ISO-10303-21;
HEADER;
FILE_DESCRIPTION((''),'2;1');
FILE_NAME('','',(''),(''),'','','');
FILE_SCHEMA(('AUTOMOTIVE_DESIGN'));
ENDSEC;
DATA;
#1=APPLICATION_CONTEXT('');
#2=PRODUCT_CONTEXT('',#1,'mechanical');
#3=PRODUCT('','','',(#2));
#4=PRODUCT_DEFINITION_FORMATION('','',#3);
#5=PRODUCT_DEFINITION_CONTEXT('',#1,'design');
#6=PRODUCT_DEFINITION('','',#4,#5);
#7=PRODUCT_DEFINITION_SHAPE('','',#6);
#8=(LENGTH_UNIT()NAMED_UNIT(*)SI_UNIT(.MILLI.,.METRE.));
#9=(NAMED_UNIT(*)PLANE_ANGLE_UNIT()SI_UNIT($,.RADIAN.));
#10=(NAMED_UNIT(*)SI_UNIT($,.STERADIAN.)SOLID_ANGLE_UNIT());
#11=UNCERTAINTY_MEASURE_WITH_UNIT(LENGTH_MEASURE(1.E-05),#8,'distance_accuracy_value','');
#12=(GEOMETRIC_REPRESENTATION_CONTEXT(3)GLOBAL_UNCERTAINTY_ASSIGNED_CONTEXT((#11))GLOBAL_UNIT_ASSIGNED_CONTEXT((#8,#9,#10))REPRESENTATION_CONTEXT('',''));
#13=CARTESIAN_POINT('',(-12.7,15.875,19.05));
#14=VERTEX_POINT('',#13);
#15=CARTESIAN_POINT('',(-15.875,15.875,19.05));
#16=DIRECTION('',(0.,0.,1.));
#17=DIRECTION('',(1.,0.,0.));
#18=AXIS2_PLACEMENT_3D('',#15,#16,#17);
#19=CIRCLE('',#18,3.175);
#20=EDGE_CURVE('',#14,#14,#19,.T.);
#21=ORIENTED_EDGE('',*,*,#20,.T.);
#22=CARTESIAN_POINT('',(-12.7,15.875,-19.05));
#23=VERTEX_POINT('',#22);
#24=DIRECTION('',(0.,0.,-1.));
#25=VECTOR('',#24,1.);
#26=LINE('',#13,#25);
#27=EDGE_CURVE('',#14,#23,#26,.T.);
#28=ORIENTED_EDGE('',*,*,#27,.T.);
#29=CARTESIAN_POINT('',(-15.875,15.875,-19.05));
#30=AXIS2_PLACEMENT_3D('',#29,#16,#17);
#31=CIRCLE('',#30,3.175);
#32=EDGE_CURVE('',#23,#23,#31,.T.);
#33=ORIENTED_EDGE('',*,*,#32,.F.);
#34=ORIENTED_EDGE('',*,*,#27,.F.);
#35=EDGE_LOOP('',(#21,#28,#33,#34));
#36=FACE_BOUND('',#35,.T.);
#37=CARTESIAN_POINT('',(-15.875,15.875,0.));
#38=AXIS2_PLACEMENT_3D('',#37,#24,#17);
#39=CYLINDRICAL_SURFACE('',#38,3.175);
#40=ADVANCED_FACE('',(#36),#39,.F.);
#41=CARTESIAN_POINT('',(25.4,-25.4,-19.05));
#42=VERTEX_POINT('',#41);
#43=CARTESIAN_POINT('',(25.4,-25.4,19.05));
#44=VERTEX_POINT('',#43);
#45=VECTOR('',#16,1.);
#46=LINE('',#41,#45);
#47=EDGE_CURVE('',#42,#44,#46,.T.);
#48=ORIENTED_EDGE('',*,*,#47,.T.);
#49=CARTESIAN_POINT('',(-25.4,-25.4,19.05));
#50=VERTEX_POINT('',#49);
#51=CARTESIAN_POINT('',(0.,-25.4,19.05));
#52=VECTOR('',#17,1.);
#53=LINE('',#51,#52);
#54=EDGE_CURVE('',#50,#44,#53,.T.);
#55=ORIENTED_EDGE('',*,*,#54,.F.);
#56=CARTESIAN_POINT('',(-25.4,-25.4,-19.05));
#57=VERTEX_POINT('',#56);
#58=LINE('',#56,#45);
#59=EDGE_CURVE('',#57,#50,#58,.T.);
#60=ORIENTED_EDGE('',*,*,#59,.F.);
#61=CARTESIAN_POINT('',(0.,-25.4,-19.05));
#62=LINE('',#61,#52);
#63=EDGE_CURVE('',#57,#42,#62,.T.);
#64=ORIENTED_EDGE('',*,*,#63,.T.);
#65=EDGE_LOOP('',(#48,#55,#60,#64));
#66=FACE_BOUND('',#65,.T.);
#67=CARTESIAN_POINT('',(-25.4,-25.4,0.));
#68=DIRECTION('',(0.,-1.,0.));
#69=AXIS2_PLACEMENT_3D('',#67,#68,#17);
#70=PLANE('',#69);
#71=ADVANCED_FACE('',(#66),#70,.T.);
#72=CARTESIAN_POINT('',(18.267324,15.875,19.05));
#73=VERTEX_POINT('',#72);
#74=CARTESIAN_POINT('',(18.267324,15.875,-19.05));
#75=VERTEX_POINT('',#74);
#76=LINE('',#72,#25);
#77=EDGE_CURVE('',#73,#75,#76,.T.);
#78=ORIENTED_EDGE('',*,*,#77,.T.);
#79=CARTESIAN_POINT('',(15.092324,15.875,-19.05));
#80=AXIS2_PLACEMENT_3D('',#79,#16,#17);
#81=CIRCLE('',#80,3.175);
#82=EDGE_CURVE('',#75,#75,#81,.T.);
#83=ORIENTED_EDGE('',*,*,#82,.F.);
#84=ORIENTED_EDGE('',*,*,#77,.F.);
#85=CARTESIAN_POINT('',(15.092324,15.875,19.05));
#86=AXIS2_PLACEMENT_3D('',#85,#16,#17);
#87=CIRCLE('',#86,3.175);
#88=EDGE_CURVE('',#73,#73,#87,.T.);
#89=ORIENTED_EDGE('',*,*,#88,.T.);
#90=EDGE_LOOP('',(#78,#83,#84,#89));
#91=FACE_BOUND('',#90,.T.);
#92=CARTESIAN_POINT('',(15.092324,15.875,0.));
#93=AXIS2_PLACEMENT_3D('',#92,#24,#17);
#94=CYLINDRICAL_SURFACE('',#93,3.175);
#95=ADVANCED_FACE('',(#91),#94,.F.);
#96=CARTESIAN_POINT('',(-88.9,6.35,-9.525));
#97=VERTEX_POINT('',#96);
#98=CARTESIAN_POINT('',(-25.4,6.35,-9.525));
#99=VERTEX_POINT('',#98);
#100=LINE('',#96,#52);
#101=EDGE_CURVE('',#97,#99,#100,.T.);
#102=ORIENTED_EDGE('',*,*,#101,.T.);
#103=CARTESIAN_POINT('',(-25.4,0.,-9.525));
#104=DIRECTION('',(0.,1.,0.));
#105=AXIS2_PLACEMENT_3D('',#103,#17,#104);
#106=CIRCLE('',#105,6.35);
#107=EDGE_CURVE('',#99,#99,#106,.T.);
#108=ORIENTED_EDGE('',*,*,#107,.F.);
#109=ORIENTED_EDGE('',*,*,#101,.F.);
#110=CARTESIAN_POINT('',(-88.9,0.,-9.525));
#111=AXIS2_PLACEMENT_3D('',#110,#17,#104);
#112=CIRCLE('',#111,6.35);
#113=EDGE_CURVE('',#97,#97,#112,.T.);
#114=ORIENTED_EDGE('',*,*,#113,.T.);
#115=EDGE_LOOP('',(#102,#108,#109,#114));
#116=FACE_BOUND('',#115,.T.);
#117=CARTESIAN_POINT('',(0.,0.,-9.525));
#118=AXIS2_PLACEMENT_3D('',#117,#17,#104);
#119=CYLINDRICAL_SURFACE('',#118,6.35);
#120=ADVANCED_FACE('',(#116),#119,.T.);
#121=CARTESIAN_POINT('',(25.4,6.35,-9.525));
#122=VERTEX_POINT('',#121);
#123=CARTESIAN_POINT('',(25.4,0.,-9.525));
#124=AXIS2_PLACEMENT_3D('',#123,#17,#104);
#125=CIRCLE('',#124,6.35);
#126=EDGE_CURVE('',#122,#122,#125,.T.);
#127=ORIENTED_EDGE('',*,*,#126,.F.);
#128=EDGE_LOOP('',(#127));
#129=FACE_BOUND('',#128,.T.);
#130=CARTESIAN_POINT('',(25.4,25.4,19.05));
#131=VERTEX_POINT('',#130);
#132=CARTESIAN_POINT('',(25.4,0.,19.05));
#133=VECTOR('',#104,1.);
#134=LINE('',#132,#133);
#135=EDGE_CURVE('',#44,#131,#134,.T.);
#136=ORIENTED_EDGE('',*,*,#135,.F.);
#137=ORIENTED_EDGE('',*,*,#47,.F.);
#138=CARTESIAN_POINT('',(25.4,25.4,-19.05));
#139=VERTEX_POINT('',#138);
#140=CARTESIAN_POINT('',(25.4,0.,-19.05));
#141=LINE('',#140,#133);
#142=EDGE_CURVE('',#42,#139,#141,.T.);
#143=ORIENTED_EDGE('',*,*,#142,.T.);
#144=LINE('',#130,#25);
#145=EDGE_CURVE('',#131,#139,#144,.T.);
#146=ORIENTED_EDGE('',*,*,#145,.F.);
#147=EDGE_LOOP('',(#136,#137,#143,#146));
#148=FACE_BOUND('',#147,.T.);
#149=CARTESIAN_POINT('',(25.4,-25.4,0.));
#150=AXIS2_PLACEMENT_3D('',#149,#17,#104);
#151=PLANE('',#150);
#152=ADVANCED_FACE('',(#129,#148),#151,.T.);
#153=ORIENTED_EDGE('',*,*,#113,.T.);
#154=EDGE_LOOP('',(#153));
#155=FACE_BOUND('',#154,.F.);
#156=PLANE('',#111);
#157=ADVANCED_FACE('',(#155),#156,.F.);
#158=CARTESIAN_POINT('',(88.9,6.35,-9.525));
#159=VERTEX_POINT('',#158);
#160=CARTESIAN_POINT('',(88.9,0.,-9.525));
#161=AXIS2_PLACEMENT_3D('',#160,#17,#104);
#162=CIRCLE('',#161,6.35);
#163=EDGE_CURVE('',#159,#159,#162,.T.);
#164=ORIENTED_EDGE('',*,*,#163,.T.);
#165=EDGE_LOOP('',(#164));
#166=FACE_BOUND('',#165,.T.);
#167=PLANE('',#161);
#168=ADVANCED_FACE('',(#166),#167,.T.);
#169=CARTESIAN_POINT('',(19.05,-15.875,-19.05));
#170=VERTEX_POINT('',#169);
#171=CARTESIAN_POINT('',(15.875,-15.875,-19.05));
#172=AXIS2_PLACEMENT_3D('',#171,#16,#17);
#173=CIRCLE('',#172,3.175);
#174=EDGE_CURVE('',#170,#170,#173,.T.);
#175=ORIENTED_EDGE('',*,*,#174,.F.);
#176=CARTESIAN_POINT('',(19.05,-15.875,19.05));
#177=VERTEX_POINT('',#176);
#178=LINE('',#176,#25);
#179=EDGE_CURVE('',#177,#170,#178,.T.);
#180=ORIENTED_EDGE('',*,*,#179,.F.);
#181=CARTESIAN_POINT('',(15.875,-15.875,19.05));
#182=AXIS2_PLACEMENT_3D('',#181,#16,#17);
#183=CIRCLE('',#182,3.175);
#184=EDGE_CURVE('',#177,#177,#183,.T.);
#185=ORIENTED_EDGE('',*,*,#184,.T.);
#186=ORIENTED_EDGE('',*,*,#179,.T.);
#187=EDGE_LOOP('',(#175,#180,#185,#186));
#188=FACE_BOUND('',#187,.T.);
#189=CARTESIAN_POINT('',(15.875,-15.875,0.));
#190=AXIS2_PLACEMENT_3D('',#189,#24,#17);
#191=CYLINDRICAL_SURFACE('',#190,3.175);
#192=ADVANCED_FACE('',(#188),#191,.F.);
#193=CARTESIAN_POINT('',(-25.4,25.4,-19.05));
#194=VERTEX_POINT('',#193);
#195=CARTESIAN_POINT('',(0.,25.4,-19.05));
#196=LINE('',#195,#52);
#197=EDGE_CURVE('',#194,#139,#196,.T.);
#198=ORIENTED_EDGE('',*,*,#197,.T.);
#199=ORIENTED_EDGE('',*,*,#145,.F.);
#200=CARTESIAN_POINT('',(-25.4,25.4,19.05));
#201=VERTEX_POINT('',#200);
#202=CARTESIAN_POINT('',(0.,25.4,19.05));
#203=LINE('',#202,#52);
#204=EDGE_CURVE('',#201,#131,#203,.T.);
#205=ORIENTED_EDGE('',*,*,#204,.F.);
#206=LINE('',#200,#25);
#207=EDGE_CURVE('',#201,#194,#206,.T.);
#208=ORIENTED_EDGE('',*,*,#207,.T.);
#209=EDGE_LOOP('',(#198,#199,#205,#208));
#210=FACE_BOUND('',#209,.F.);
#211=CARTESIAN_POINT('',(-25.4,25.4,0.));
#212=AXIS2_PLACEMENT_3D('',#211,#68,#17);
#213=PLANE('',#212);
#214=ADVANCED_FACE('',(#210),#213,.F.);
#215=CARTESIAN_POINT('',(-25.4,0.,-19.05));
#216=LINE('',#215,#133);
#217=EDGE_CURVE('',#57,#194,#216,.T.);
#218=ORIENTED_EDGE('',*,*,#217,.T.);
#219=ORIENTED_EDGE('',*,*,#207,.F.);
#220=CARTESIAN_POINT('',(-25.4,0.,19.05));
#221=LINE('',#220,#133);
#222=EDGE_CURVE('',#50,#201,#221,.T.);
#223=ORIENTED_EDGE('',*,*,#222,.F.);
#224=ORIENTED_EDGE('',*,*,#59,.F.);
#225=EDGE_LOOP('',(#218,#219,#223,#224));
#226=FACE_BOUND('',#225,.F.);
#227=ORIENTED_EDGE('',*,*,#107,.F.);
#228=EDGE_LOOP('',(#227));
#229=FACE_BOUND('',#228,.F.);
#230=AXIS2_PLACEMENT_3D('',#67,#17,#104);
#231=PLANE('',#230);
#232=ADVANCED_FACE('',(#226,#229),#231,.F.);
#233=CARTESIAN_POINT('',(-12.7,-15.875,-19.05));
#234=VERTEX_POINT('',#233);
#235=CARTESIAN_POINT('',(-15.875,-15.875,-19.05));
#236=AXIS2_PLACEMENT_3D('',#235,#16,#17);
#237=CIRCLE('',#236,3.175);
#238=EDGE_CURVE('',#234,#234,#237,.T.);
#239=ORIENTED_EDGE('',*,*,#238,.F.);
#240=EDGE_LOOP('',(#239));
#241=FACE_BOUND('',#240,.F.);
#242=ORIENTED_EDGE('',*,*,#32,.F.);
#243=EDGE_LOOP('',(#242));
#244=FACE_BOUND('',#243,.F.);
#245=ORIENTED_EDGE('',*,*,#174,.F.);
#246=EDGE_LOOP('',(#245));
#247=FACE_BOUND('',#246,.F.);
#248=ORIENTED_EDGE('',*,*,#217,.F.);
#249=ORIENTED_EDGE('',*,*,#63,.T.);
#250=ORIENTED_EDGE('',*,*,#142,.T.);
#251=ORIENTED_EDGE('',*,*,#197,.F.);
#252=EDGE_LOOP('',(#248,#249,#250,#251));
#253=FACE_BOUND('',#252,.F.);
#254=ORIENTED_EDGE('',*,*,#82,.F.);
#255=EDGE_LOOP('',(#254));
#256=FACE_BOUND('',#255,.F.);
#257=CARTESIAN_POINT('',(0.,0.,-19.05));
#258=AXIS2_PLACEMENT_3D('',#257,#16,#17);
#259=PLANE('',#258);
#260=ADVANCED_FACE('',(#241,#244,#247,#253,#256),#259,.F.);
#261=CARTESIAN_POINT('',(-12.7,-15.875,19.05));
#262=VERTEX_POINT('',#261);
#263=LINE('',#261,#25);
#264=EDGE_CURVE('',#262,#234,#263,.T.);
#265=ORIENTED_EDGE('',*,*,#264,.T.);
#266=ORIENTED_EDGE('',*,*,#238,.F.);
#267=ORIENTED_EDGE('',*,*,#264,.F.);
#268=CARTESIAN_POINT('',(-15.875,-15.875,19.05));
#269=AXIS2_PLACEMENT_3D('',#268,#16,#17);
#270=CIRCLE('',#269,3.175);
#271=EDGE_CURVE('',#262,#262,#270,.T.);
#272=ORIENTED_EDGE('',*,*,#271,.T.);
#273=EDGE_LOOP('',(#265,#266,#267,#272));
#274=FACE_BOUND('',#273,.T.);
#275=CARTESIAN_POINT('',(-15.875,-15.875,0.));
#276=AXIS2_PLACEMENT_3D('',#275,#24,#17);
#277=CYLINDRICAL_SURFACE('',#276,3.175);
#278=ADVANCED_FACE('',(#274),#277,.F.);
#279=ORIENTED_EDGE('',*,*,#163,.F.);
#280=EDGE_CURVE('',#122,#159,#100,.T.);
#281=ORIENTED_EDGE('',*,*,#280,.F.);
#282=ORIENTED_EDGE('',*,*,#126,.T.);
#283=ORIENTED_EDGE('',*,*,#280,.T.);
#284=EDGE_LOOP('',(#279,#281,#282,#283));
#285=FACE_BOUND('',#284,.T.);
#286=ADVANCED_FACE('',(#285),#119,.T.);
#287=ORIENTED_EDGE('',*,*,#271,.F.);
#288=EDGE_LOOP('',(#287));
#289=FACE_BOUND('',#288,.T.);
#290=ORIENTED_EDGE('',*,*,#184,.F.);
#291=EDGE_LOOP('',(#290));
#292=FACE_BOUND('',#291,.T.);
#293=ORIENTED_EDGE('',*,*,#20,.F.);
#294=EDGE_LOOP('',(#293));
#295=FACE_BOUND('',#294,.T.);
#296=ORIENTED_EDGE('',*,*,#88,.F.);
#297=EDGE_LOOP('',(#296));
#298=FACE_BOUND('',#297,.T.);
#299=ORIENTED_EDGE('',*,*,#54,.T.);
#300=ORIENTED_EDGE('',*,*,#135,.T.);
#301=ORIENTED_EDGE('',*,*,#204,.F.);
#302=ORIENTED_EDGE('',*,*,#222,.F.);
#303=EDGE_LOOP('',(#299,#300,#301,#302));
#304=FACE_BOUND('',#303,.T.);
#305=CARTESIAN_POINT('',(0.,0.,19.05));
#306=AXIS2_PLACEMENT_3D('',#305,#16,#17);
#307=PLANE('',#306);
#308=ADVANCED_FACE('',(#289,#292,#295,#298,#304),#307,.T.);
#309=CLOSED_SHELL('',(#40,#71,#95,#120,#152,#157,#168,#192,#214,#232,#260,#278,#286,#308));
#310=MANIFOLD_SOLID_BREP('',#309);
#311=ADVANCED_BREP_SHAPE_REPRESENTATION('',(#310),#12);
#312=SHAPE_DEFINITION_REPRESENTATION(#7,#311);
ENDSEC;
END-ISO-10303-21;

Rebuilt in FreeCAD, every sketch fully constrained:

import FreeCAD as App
import Part
import Sketcher
from FreeCAD import Vector
Q = App.Units.Quantity

doc = App.newDocument("Part")
params = doc.addObject("Spreadsheet::Sheet", "Params")
for row, (alias, value) in enumerate([
    ("sketch1_diameter", "0.25 in"),
    ("sketch1_width", "2 in"),
    ("pad1_length", "1.5 in"),
    ("sketch2_diameter", "0.5 in"),
    ("pad2_length", "7 in"),
], start=1):
    params.set(f"A{row}", alias)
    params.set(f"B{row}", "=" + value)
    params.setAlias(f"B{row}", alias)

body = doc.addObject("PartDesign::Body", "Body")

sketch1 = body.newObject("Sketcher::SketchObject", "Sketch")
sketch1.AttachmentSupport = (doc.getObject("XY_Plane"), [""])
sketch1.MapMode = "FlatFace"
sketch1.addGeometry(Part.LineSegment(Vector(-25.4, 25.4, 0), Vector(-25.4, -25.4, 0)), False)
sketch1.addGeometry(Part.LineSegment(Vector(-25.4, -25.4, 0), Vector(25.4, -25.4, 0)), False)
sketch1.addGeometry(Part.LineSegment(Vector(25.4, -25.4, 0), Vector(25.4, 25.4, 0)), False)
sketch1.addGeometry(Part.LineSegment(Vector(25.4, 25.4, 0), Vector(-25.4, 25.4, 0)), False)
sketch1.addGeometry(Part.Circle(Vector(-15.9, -15.9, 0), Vector(0, 0, 1), 3.2), False)
sketch1.addGeometry(Part.Circle(Vector(15.9, -15.9, 0), Vector(0, 0, 1), 3.2), False)
sketch1.addGeometry(Part.Circle(Vector(-15.9, 15.9, 0), Vector(0, 0, 1), 3.2), False)
sketch1.addGeometry(Part.Circle(Vector(15.1, 15.9, 0), Vector(0, 0, 1), 3.2), False)
sketch1.addConstraint(Sketcher.Constraint("Coincident", 0, 2, 1, 1))
sketch1.addConstraint(Sketcher.Constraint("Coincident", 1, 2, 2, 1))
sketch1.addConstraint(Sketcher.Constraint("Coincident", 2, 2, 3, 1))
sketch1.addConstraint(Sketcher.Constraint("Coincident", 3, 2, 0, 1))
sketch1.addConstraint(Sketcher.Constraint("Vertical", 0))
sketch1.addConstraint(Sketcher.Constraint("Horizontal", 1))
sketch1.addConstraint(Sketcher.Constraint("Vertical", 2))
sketch1.addConstraint(Sketcher.Constraint("Horizontal", 3))
sketch1.addConstraint(Sketcher.Constraint("Equal", 4, 5))
sketch1.addConstraint(Sketcher.Constraint("Equal", 5, 6))
sketch1.addConstraint(Sketcher.Constraint("Equal", 6, 7))
sketch1.addConstraint(Sketcher.Constraint("Symmetric", 5, 3, 6, 3, -1, 1))
sketch1.addConstraint(Sketcher.Constraint("Symmetric", 0, 2, 2, 2, -1, 1))
sketch1.addConstraint(Sketcher.Constraint("Symmetric", 4, 3, 5, 3, -2))
sketch1.addConstraint(Sketcher.Constraint("Horizontal", 6, 3, 7, 3))
sketch1.addConstraint(Sketcher.Constraint("Equal", 3, 0))
sketch1.addConstraint(Sketcher.Constraint("Diameter", 4, Q("0.25 in")))
sketch1.addConstraint(Sketcher.Constraint("DistanceX", 1, 1, 1, 2, Q("2 in")))
sketch1.addConstraint(Sketcher.Constraint("DistanceX", 4, 3, 5, 3, Q("1.25 in")))
sketch1.addConstraint(Sketcher.Constraint("DistanceY", 4, 3, 6, 3, Q("1.25 in")))
sketch1.addConstraint(Sketcher.Constraint("DistanceX", -1, 1, 7, 3, 15.092324))
sketch1.setExpression("Constraints[16]", "Params.sketch1_diameter")
sketch1.setExpression("Constraints[17]", "Params.sketch1_width")
pad1 = body.newObject("PartDesign::Pad", "Pad")
pad1.Profile = sketch1
pad1.setExpression("Length", "Params.pad1_length")
pad1.Midplane = True

sketch2 = body.newObject("Sketcher::SketchObject", "Sketch001")
sketch2.AttachmentSupport = (doc.getObject("YZ_Plane"), [""])
sketch2.MapMode = "FlatFace"
sketch2.addGeometry(Part.Circle(Vector(0, -10, 0), Vector(0, 0, 1), 6), False)
sketch2.addConstraint(Sketcher.Constraint("PointOnObject", 0, 3, -2))
sketch2.addConstraint(Sketcher.Constraint("Diameter", 0, Q("0.5 in")))
sketch2.addConstraint(Sketcher.Constraint("DistanceY", 0, 3, -1, 1, Q("0.375 in")))
sketch2.setExpression("Constraints[1]", "Params.sketch2_diameter")
pad2 = body.newObject("PartDesign::Pad", "Pad001")
pad2.Profile = sketch2
pad2.setExpression("Length", "Params.pad2_length")
pad2.Midplane = True

doc.recompute()
